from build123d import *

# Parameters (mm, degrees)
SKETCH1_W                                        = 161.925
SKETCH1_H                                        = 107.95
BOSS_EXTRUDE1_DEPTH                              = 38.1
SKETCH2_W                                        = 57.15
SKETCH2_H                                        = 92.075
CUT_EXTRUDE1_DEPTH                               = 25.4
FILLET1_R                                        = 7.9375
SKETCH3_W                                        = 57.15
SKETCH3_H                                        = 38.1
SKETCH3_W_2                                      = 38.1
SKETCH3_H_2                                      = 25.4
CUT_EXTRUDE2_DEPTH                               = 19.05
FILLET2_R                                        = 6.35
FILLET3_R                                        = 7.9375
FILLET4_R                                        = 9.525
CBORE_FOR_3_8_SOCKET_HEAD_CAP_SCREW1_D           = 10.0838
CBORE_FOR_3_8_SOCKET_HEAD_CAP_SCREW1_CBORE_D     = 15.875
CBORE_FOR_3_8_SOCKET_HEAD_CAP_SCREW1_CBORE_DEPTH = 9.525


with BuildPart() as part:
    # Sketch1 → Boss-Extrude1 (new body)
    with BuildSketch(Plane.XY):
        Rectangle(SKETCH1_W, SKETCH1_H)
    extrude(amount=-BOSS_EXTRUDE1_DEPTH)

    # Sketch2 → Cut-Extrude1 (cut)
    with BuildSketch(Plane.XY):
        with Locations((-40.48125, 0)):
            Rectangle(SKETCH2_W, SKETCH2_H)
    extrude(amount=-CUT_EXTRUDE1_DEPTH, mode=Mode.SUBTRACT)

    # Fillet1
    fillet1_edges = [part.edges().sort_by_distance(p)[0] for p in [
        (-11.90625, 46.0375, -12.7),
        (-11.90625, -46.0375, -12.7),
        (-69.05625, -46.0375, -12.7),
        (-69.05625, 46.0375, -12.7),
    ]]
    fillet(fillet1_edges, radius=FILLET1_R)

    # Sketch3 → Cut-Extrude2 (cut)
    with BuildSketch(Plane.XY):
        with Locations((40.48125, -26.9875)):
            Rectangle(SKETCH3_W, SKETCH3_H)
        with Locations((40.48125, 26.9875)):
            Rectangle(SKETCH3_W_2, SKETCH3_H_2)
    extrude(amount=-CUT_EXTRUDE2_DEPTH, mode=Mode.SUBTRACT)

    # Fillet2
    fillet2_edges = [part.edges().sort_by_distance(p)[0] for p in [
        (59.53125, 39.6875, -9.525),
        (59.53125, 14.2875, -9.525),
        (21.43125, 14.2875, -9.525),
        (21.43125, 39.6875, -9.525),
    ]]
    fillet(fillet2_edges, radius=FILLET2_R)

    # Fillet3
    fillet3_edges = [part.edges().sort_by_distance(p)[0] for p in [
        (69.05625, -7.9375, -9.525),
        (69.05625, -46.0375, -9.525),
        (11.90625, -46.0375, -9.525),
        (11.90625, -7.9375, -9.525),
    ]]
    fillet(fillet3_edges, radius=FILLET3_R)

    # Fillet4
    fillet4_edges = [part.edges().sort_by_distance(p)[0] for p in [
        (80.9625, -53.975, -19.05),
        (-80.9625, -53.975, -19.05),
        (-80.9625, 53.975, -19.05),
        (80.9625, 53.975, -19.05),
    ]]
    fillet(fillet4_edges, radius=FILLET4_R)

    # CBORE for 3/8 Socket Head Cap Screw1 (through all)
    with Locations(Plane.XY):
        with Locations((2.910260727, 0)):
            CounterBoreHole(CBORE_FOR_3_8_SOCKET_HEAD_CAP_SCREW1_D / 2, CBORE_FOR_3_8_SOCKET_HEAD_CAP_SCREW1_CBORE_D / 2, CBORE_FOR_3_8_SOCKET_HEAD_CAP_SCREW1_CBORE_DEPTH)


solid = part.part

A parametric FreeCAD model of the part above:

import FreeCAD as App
import Part
import Sketcher
from FreeCAD import Vector
Q = App.Units.Quantity


def edges_at(feature, points):
    """Names of the edges that pass closest to the given points."""
    edges = feature.Shape.Edges
    near = lambda p: min(range(len(edges)), key=lambda i: edges[i].distToShape(Part.Vertex(*p))[0])
    return sorted({f"Edge{near(p) + 1}" for p in points})


def add_polygon(sketch, points):
    """Adds a closed chain of lines whose ends are joined by coincident constraints."""
    first, n = sketch.GeometryCount, len(points)
    for a, b in zip(points, points[1:] + points[:1]):
        sketch.addGeometry(Part.LineSegment(App.Vector(*a, 0), App.Vector(*b, 0)), False)
    for i in range(n):
        sketch.addConstraint(Sketcher.Constraint("Coincident", first + i, 2, first + (i + 1) % n, 1))

doc = App.newDocument("Part")
body = doc.addObject("PartDesign::Body", "Body")

sketch1 = body.newObject("Sketcher::SketchObject", "Sketch")
sketch1.AttachmentSupport = (doc.getObject("XY_Plane"), [""])
sketch1.MapMode = "FlatFace"
add_polygon(sketch1, [(-81, 54), (-81, -54), (81, -54), (81, 54)])
sketch1.addConstraint(Sketcher.Constraint("Vertical", 0))
sketch1.addConstraint(Sketcher.Constraint("Horizontal", 1))
sketch1.addConstraint(Sketcher.Constraint("Vertical", 2))
sketch1.addConstraint(Sketcher.Constraint("Horizontal", 3))
sketch1.addConstraint(Sketcher.Constraint("Symmetric", 0, 2, 2, 2, -1, 1))
sketch1.addConstraint(Sketcher.Constraint("DistanceY", 0, 2, 0, 1, Q("4.25 in")))
sketch1.addConstraint(Sketcher.Constraint("DistanceX", 1, 1, 1, 2, Q("6.375 in")))
pad1 = body.newObject("PartDesign::Pad", "Pad")
pad1.Profile = sketch1
pad1.Length = Q("1.5 in")
pad1.Reversed = True

sketch2 = body.newObject("Sketcher::SketchObject", "Sketch001")
sketch2.AttachmentSupport = (doc.getObject("XY_Plane"), [""])
sketch2.MapMode = "FlatFace"
add_polygon(sketch2, [(-69, 46), (-69, -46), (-12, -46), (-12, 46)])
sketch2.addConstraint(Sketcher.Constraint("Vertical", 0))
sketch2.addConstraint(Sketcher.Constraint("Horizontal", 1))
sketch2.addConstraint(Sketcher.Constraint("Vertical", 2))
sketch2.addConstraint(Sketcher.Constraint("Horizontal", 3))
sketch2.addConstraint(Sketcher.Constraint("DistanceX", 1, 1, 1, 2, Q("2.25 in")))
sketch2.addConstraint(Sketcher.Constraint("DistanceY", 0, 2, 0, 1, Q("3.625 in")))
sketch2.addConstraint(Sketcher.Constraint("DistanceX", 0, 2, -1, 1, Q("2.71875 in")))
sketch2.addConstraint(Sketcher.Constraint("DistanceY", 0, 2, -1, 1, Q("1.8125 in")))
pocket1 = body.newObject("PartDesign::Pocket", "Pocket")
pocket1.Profile = sketch2
pocket1.Length = Q("1 in")
doc.recompute()

fillet = body.newObject("PartDesign::Fillet", "Fillet")
fillet.Base = (pocket1, edges_at(pocket1, [
    (-11.906, 46.038, -12.7),
    (-11.906, -46.038, -12.7),
    (-69.056, -46.038, -12.7),
    (-69.056, 46.038, -12.7),
]))
fillet.Radius = Q("0.3125 in")

sketch3 = body.newObject("Sketcher::SketchObject", "Sketch002")
sketch3.AttachmentSupport = (doc.getObject("XY_Plane"), [""])
sketch3.MapMode = "FlatFace"
add_polygon(sketch3, [(12, -8), (12, -46), (69, -46), (69, -8)])
add_polygon(sketch3, [(21, 40), (21, 14), (60, 14), (60, 40)])
sketch3.addConstraint(Sketcher.Constraint("Vertical", 0))
sketch3.addConstraint(Sketcher.Constraint("Horizontal", 1))
sketch3.addConstraint(Sketcher.Constraint("Vertical", 2))
sketch3.addConstraint(Sketcher.Constraint("Horizontal", 3))
sketch3.addConstraint(Sketcher.Constraint("Vertical", 4))
sketch3.addConstraint(Sketcher.Constraint("Horizontal", 5))
sketch3.addConstraint(Sketcher.Constraint("Vertical", 6))
sketch3.addConstraint(Sketcher.Constraint("Horizontal", 7))
sketch3.addConstraint(Sketcher.Constraint("Equal", 7, 0))
sketch3.addConstraint(Sketcher.Constraint("DistanceY", 4, 2, 4, 1, Q("1 in")))
sketch3.addConstraint(Sketcher.Constraint("DistanceX", 5, 1, 5, 2, Q("1.5 in")))
sketch3.addConstraint(Sketcher.Constraint("DistanceX", 1, 1, 1, 2, Q("2.25 in")))
sketch3.addConstraint(Sketcher.Constraint("DistanceX", -1, 1, 0, 2, Q("0.46875 in")))
sketch3.addConstraint(Sketcher.Constraint("DistanceY", 0, 2, -1, 1, Q("1.8125 in")))
sketch3.addConstraint(Sketcher.Constraint("DistanceX", -1, 1, 4, 2, Q("0.84375 in")))
sketch3.addConstraint(Sketcher.Constraint("DistanceY", -1, 1, 4, 2, Q("0.5625 in")))
pocket2 = body.newObject("PartDesign::Pocket", "Pocket001")
pocket2.Profile = sketch3
pocket2.Length = Q("0.75 in")
doc.recompute()

fillet2 = body.newObject("PartDesign::Fillet", "Fillet001")
fillet2.Base = (pocket2, edges_at(pocket2, [
    (59.531, 39.688, -9.525),
    (59.531, 14.287, -9.525),
    (21.431, 14.287, -9.525),
    (21.431, 39.688, -9.525),
]))
fillet2.Radius = Q("0.25 in")
doc.recompute()

fillet3 = body.newObject("PartDesign::Fillet", "Fillet002")
fillet3.Base = (fillet2, edges_at(fillet2, [
    (69.056, -7.938, -9.525),
    (69.056, -46.038, -9.525),
    (11.906, -46.038, -9.525),
    (11.906, -7.938, -9.525),
]))
fillet3.Radius = Q("0.3125 in")
doc.recompute()

fillet4 = body.newObject("PartDesign::Fillet", "Fillet003")
fillet4.Base = (fillet3, edges_at(fillet3, [
    (80.963, -53.975, -19.05),
    (-80.963, -53.975, -19.05),
    (-80.963, 53.975, -19.05),
    (80.963, 53.975, -19.05),
]))
fillet4.Radius = Q("0.375 in")

sketch4 = body.newObject("Sketcher::SketchObject", "Sketch003")
sketch4.AttachmentSupport = (doc.getObject("XY_Plane"), [""])
sketch4.MapMode = "FlatFace"
sketch4.addGeometry(Part.Circle(Vector(3, 0, 0), Vector(0, 0, 1), 5), False)
sketch4.addConstraint(Sketcher.Constraint("PointOnObject", 0, 3, -1))
sketch4.addConstraint(Sketcher.Constraint("Diameter", 0, Q("0.397 in")))
sketch4.addConstraint(Sketcher.Constraint("DistanceX", -1, 1, 0, 3, Q("2.910261 mm")))
doc.recompute()
hole = body.newObject("PartDesign::Hole", "Hole")
hole.Profile = sketch4
hole.ThreadType = "None"
hole.Diameter = Q("0.397 in")
hole.DepthType = "ThroughAll"
hole.HoleCutType = "Counterbore"
hole.HoleCutDiameter = Q("0.625 in")
hole.HoleCutDepth = Q("0.375 in")

doc.recompute()
